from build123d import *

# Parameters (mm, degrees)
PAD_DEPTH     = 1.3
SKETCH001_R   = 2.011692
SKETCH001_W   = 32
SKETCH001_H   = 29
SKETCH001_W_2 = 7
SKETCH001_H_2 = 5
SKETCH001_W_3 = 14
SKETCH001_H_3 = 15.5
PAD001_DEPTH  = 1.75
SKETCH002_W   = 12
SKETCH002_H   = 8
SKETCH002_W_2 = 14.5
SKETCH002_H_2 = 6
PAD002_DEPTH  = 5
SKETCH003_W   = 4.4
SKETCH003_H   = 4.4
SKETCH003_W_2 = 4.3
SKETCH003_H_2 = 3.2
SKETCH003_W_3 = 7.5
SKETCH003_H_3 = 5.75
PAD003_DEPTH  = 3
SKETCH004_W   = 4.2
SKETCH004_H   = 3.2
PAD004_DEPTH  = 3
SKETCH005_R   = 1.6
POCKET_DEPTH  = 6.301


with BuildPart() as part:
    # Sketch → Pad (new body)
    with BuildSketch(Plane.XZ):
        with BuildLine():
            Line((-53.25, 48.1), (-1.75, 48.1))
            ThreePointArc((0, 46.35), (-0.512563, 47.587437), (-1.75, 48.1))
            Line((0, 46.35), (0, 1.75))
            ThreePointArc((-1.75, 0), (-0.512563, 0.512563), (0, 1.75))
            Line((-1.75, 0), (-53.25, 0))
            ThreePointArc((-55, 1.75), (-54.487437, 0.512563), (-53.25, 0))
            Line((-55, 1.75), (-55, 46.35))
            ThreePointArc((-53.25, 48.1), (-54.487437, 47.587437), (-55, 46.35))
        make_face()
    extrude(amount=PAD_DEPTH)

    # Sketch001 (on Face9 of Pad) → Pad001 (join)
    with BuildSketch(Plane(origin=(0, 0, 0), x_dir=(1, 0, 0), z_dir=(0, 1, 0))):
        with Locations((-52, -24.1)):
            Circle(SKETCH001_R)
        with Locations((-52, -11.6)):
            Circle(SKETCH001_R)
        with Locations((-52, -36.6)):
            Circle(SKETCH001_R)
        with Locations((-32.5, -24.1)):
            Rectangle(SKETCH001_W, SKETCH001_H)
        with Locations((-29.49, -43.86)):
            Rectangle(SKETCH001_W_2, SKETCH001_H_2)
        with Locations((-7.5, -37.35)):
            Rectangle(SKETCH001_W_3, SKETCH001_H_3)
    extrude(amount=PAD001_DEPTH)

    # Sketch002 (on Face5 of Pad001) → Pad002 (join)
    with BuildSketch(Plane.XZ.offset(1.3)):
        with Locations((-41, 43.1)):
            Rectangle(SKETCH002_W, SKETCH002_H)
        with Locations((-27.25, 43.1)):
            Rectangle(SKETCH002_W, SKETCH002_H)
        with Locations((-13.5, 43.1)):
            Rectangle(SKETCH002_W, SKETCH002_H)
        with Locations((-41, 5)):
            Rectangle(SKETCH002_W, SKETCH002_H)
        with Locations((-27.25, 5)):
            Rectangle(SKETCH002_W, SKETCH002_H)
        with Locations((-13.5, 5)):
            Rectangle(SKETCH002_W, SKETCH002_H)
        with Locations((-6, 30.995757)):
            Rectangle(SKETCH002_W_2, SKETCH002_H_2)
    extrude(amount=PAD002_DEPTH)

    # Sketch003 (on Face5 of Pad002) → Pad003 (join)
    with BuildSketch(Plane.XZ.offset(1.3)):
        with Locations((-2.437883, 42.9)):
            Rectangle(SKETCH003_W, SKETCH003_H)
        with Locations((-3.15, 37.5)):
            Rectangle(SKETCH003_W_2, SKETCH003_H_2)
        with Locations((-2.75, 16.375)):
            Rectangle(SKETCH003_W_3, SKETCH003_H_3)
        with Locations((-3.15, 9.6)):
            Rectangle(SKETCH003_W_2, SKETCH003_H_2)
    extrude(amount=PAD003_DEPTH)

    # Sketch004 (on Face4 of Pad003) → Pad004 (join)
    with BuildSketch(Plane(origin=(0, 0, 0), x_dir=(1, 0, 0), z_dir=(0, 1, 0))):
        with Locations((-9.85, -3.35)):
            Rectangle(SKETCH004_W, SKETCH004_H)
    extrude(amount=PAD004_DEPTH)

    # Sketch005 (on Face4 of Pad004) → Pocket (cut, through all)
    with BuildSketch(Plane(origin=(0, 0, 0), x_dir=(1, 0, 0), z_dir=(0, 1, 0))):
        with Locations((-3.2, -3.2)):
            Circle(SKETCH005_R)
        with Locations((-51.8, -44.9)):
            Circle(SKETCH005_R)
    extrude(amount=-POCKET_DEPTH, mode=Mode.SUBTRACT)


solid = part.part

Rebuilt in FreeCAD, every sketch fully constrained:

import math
import FreeCAD as App
import Part
import Sketcher
from FreeCAD import Vector
Q = App.Units.Quantity


def add_polygon(sketch, points):
    """Adds a closed chain of lines whose ends are joined by coincident constraints."""
    first, n = sketch.GeometryCount, len(points)
    for a, b in zip(points, points[1:] + points[:1]):
        sketch.addGeometry(Part.LineSegment(App.Vector(*a, 0), App.Vector(*b, 0)), False)
    for i in range(n):
        sketch.addConstraint(Sketcher.Constraint("Coincident", first + i, 2, first + (i + 1) % n, 1))

doc = App.newDocument("Part")
params = doc.addObject("Spreadsheet::Sheet", "Params")
for row, (alias, value) in enumerate([
    ("sketch1_radius", "1.75 mm"),
    ("sketch1_width", "51.5 mm"),
    ("sketch1_height", "44.6 mm"),
    ("pad1_length", "1.3 mm"),
    ("sketch2_width", "32 mm"),
    ("sketch2_width2", "7 mm"),
    ("sketch2_width3", "14 mm"),
    ("sketch2_height", "29 mm"),
    ("sketch2_height2", "5 mm"),
    ("pad2_length", "1.75 mm"),
    ("sketch3_width", "12 mm"),
    ("sketch3_height", "8 mm"),
    ("sketch3_height2", "6 mm"),
    ("sketch3_width2", "14.5 mm"),
    ("pad3_length", "5 mm"),
    ("sketch4_width", "4.4 mm"),
    ("sketch4_width2", "4.3 mm"),
    ("sketch4_width3", "7.5 mm"),
    ("sketch4_height", "3.2 mm"),
    ("sketch4_height2", "5.75 mm"),
    ("pad4_length", "3 mm"),
    ("sketch5_width", "4.2 mm"),
    ("sketch5_height", "3.2 mm"),
    ("pad5_length", "3 mm"),
    ("sketch6_diameter", "3.2 mm"),
], start=1):
    params.set(f"A{row}", alias)
    params.set(f"B{row}", "=" + value)
    params.setAlias(f"B{row}", alias)

body = doc.addObject("PartDesign::Body", "Body")

# Sketch on XZ plane
sketch1 = body.newObject("Sketcher::SketchObject", "Sketch")
sketch1.AttachmentSupport = (doc.getObject("XZ_Plane"), [""])
sketch1.MapMode = "FlatFace"
sketch1.addGeometry(Part.LineSegment(Vector(-1.75, 48.1, 0), Vector(-53.25, 48.1, 0)), False)
sketch1.addGeometry(Part.ArcOfCircle(Part.Circle(Vector(-53.25, 46.35, 0), Vector(0, 0, 1), 1.75), math.radians(89.999985), math.radians(180.000015)), False)
sketch1.addGeometry(Part.LineSegment(Vector(-55, 46.35, 0), Vector(-55, 1.75, 0)), False)
sketch1.addGeometry(Part.ArcOfCircle(Part.Circle(Vector(-53.25, 1.75, 0), Vector(0, 0, 1), 1.75), math.radians(179.999985), math.radians(270.000015)), False)
sketch1.addGeometry(Part.LineSegment(Vector(-53.25, 0, 0), Vector(-1.75, 0, 0)), False)
sketch1.addGeometry(Part.ArcOfCircle(Part.Circle(Vector(-1.75, 1.75, 0), Vector(0, 0, 1), 1.75), math.radians(-90.000015), math.radians(0.000015)), False)
sketch1.addGeometry(Part.LineSegment(Vector(0, 1.75, 0), Vector(0, 46.35, 0)), False)
sketch1.addGeometry(Part.ArcOfCircle(Part.Circle(Vector(-1.75, 46.35, 0), Vector(0, 0, 1), 1.75), math.radians(-0.000015), math.radians(90.000015)), False)
sketch1.addConstraint(Sketcher.Constraint("Tangent", 0, 2, 1, 1))
sketch1.addConstraint(Sketcher.Constraint("Tangent", 1, 2, 2, 1))
sketch1.addConstraint(Sketcher.Constraint("Tangent", 2, 2, 3, 1))
sketch1.addConstraint(Sketcher.Constraint("Tangent", 3, 2, 4, 1))
sketch1.addConstraint(Sketcher.Constraint("Tangent", 4, 2, 5, 1))
sketch1.addConstraint(Sketcher.Constraint("Tangent", 5, 2, 6, 1))
sketch1.addConstraint(Sketcher.Constraint("Tangent", 6, 2, 7, 1))
sketch1.addConstraint(Sketcher.Constraint("Tangent", 7, 2, 0, 1))
sketch1.addConstraint(Sketcher.Constraint("Horizontal", 0))
sketch1.addConstraint(Sketcher.Constraint("Vertical", 2))
sketch1.addConstraint(Sketcher.Constraint("Horizontal", 4))
sketch1.addConstraint(Sketcher.Constraint("Vertical", 6))
sketch1.addConstraint(Sketcher.Constraint("Equal", 1, 3))
sketch1.addConstraint(Sketcher.Constraint("Equal", 3, 5))
sketch1.addConstraint(Sketcher.Constraint("Equal", 5, 7))
sketch1.addConstraint(Sketcher.Constraint("PointOnObject", 3, 2, -1))
sketch1.addConstraint(Sketcher.Constraint("PointOnObject", 5, 2, -2))
sketch1.addConstraint(Sketcher.Constraint("Radius", 1, Q("1.75 mm")))
sketch1.addConstraint(Sketcher.Constraint("DistanceX", 0, 2, 0, 1, Q("51.5 mm")))
sketch1.addConstraint(Sketcher.Constraint("DistanceY", 2, 2, 2, 1, Q("44.6 mm")))
sketch1.setExpression("Constraints[17]", "Params.sketch1_radius")
sketch1.setExpression("Constraints[18]", "Params.sketch1_width")
sketch1.setExpression("Constraints[19]", "Params.sketch1_height")
pad1 = body.newObject("PartDesign::Pad", "Pad")
pad1.Profile = sketch1
pad1.setExpression("Length", "Params.pad1_length")

# Sketch on XZ plane
sketch2 = body.newObject("Sketcher::SketchObject", "Sketch001")
sketch2.AttachmentSupport = (doc.getObject("XZ_Plane"), [""])
sketch2.MapMode = "FlatFace"
sketch2.addGeometry(Part.Circle(Vector(-52, 24.1, 0), Vector(0, 0, 1), 2.011692), False)  # 0
sketch2.addGeometry(Part.Circle(Vector(-52, 11.6, 0), Vector(0, 0, 1), 2.011692), False)  # 1
sketch2.addGeometry(Part.Circle(Vector(-52, 36.6, 0), Vector(0, 0, 1), 2.011692), False)  # 2
add_polygon(sketch2, [(-48.5, 9.6), (-48.5, 38.6), (-16.5, 38.6), (-16.5, 9.6)])  # lines 3-6
add_polygon(sketch2, [(-32.99, 41.36), (-32.99, 46.36), (-25.99, 46.36), (-25.99, 41.36)])  # lines 7-10
add_polygon(sketch2, [(-14.5, 29.6), (-14.5, 45.1), (-0.5, 45.1), (-0.5, 29.6)])  # lines 11-14
sketch2.addConstraint(Sketcher.Constraint("Vertical", 3))
sketch2.addConstraint(Sketcher.Constraint("Horizontal", 4))
sketch2.addConstraint(Sketcher.Constraint("Vertical", 5))
sketch2.addConstraint(Sketcher.Constraint("Horizontal", 6))
sketch2.addConstraint(Sketcher.Constraint("Vertical", 7))
sketch2.addConstraint(Sketcher.Constraint("Horizontal", 8))
sketch2.addConstraint(Sketcher.Constraint("Vertical", 9))
sketch2.addConstraint(Sketcher.Constraint("Horizontal", 10))
sketch2.addConstraint(Sketcher.Constraint("Vertical", 11))
sketch2.addConstraint(Sketcher.Constraint("Horizontal", 12))
sketch2.addConstraint(Sketcher.Constraint("Vertical", 13))
sketch2.addConstraint(Sketcher.Constraint("Horizontal", 14))
sketch2.addConstraint(Sketcher.Constraint("Equal", 0, 1))
sketch2.addConstraint(Sketcher.Constraint("Equal", 1, 2))
sketch2.addConstraint(Sketcher.Constraint("Vertical", 0, 3, 1, 3))
sketch2.addConstraint(Sketcher.Constraint("Vertical", 1, 3, 2, 3))
sketch2.addConstraint(Sketcher.Constraint("DistanceX", 4, 1, 4, 2, Q("32 mm")))
sketch2.addConstraint(Sketcher.Constraint("DistanceX", 8, 1, 8, 2, Q("7 mm")))
sketch2.addConstraint(Sketcher.Constraint("DistanceX", 12, 1, 12, 2, Q("14 mm")))
sketch2.addConstraint(Sketcher.Constraint("DistanceY", 3, 1, 3, 2, Q("29 mm")))
sketch2.addConstraint(Sketcher.Constraint("DistanceY", 7, 1, 7, 2, Q("5 mm")))
sketch2.addConstraint(Sketcher.Constraint("DistanceY", 11, 1, 11, 2, Q("15.5 mm")))
sketch2.addConstraint(Sketcher.Constraint("DistanceX", 0, 3, -1, 1, Q("52 mm")))
sketch2.addConstraint(Sketcher.Constraint("DistanceY", 1, 3, 2, 3, Q("25 mm")))
sketch2.addConstraint(Sketcher.Constraint("DistanceY", 2, 3, 3, 2, Q("2 mm")))
sketch2.addConstraint(Sketcher.Constraint("DistanceX", 4, 2, 11, 2, Q("2 mm")))
sketch2.addConstraint(Sketcher.Constraint("DistanceY", 13, 2, 4, 2, Q("9 mm")))
sketch2.addConstraint(Sketcher.Constraint("DistanceY", -1, 1, 0, 3, Q("24.1 mm")))
sketch2.addConstraint(Sketcher.Constraint("DistanceY", -1, 1, 1, 3, Q("11.6 mm")))
sketch2.addConstraint(Sketcher.Constraint("DistanceX", 3, 2, -1, 1, Q("48.5 mm")))
sketch2.addConstraint(Sketcher.Constraint("DistanceX", 7, 2, -1, 1, Q("32.99 mm")))
sketch2.addConstraint(Sketcher.Constraint("DistanceY", -1, 1, 7, 2, Q("46.36 mm")))
sketch2.addConstraint(Sketcher.Constraint("Diameter", 0, Q("4.023384 mm")))
sketch2.setExpression("Constraints[28]", "Params.sketch2_width")
sketch2.setExpression("Constraints[29]", "Params.sketch2_width2")
sketch2.setExpression("Constraints[30]", "Params.sketch2_width3")
sketch2.setExpression("Constraints[31]", "Params.sketch2_height")
sketch2.setExpression("Constraints[32]", "Params.sketch2_height2")
pad2 = body.newObject("PartDesign::Pad", "Pad001")
pad2.Profile = sketch2
pad2.setExpression("Length", "Params.pad2_length")
pad2.Reversed = True

# Sketch on XZ plane
sketch3 = body.newObject("Sketcher::SketchObject", "Sketch002")
sketch3.AttachmentSupport = (doc.getObject("XZ_Plane"), [""])
sketch3.MapMode = "FlatFace"
sketch3.AttachmentOffset = App.Placement(Vector(0, 0, 1.3), App.Rotation())
add_polygon(sketch3, [(-47, 47.1), (-47, 39.1), (-35, 39.1), (-35, 47.1)])  # lines 0-3
add_polygon(sketch3, [(-33.25, 47.1), (-33.25, 39.1), (-21.25, 39.1), (-21.25, 47.1)])  # lines 4-7
add_polygon(sketch3, [(-19.5, 47.1), (-19.5, 39.1), (-7.5, 39.1), (-7.5, 47.1)])  # lines 8-11
add_polygon(sketch3, [(-47, 9), (-47, 1), (-35, 1), (-35, 9)])  # lines 12-15
add_polygon(sketch3, [(-33.25, 9), (-33.25, 1), (-21.25, 1), (-21.25, 9)])  # lines 16-19
add_polygon(sketch3, [(-19.5, 9), (-19.5, 1), (-7.5, 1), (-7.5, 9)])  # lines 20-23
add_polygon(sketch3, [(-13.25, 33.995757), (-13.25, 27.995757), (1.25, 27.995757), (1.25, 33.995757)])  # lines 24-27
sketch3.addConstraint(Sketcher.Constraint("Vertical", 0))
sketch3.addConstraint(Sketcher.Constraint("Horizontal", 1))
sketch3.addConstraint(Sketcher.Constraint("Vertical", 2))
sketch3.addConstraint(Sketcher.Constraint("Horizontal", 3))
sketch3.addConstraint(Sketcher.Constraint("Vertical", 4))
sketch3.addConstraint(Sketcher.Constraint("Horizontal", 5))
sketch3.addConstraint(Sketcher.Constraint("Vertical", 6))
sketch3.addConstraint(Sketcher.Constraint("Horizontal", 7))
sketch3.addConstraint(Sketcher.Constraint("Vertical", 8))
sketch3.addConstraint(Sketcher.Constraint("Horizontal", 9))
sketch3.addConstraint(Sketcher.Constraint("Vertical", 10))
sketch3.addConstraint(Sketcher.Constraint("Horizontal", 11))
sketch3.addConstraint(Sketcher.Constraint("Vertical", 12))
sketch3.addConstraint(Sketcher.Constraint("Horizontal", 13))
sketch3.addConstraint(Sketcher.Constraint("Vertical", 14))
sketch3.addConstraint(Sketcher.Constraint("Horizontal", 15))
sketch3.addConstraint(Sketcher.Constraint("Vertical", 16))
sketch3.addConstraint(Sketcher.Constraint("Horizontal", 17))
sketch3.addConstraint(Sketcher.Constraint("Vertical", 18))
sketch3.addConstraint(Sketcher.Constraint("Horizontal", 19))
sketch3.addConstraint(Sketcher.Constraint("Vertical", 20))
sketch3.addConstraint(Sketcher.Constraint("Horizontal", 21))
sketch3.addConstraint(Sketcher.Constraint("Vertical", 22))
sketch3.addConstraint(Sketcher.Constraint("Horizontal", 23))
sketch3.addConstraint(Sketcher.Constraint("Vertical", 24))
sketch3.addConstraint(Sketcher.Constraint("Horizontal", 25))
sketch3.addConstraint(Sketcher.Constraint("Vertical", 26))
sketch3.addConstraint(Sketcher.Constraint("Horizontal", 27))
sketch3.addConstraint(Sketcher.Constraint("Horizontal", 1, 2, 4, 2))
sketch3.addConstraint(Sketcher.Constraint("Horizontal", 3, 2, 6, 2))
sketch3.addConstraint(Sketcher.Constraint("Horizontal", 5, 2, 8, 2))
sketch3.addConstraint(Sketcher.Constraint("Horizontal", 7, 2, 10, 2))
sketch3.addConstraint(Sketcher.Constraint("Horizontal", 13, 2, 16, 2))
sketch3.addConstraint(Sketcher.Constraint("Horizontal", 15, 2, 18, 2))
sketch3.addConstraint(Sketcher.Constraint("Horizontal", 17, 2, 20, 2))
sketch3.addConstraint(Sketcher.Constraint("Horizontal", 19, 2, 22, 2))
sketch3.addConstraint(Sketcher.Constraint("Vertical", 3, 2, 12, 2))
sketch3.addConstraint(Sketcher.Constraint("Vertical", 2, 2, 13, 2))
sketch3.addConstraint(Sketcher.Constraint("Vertical", 7, 2, 16, 2))
sketch3.addConstraint(Sketcher.Constraint("Vertical", 6, 2, 17, 2))
sketch3.addConstraint(Sketcher.Constraint("Vertical", 11, 2, 20, 2))
sketch3.addConstraint(Sketcher.Constraint("Vertical", 10, 2, 21, 2))
sketch3.addConstraint(Sketcher.Constraint("Equal", 3, 5))
sketch3.addConstraint(Sketcher.Constraint("Equal", 7, 9))
sketch3.addConstraint(Sketcher.Constraint("Equal", 10, 12))
sketch3.addConstraint(Sketcher.Constraint("DistanceX", 1, 1, 1, 2, Q("12 mm")))
sketch3.addConstraint(Sketcher.Constraint("DistanceY", 0, 2, 0, 1, Q("8 mm")))
sketch3.addConstraint(Sketcher.Constraint("DistanceY", 24, 2, 24, 1, Q("6 mm")))
sketch3.addConstraint(Sketcher.Constraint("DistanceX", 25, 1, 25, 2, Q("14.5 mm")))
sketch3.addConstraint(Sketcher.Constraint("DistanceX", 0, 2, -1, 1, Q("47 mm")))
sketch3.addConstraint(Sketcher.Constraint("DistanceY", -1, 1, 12, 2, Q("1 mm")))
sketch3.addConstraint(Sketcher.Constraint("DistanceX", 5, 2, 24, 2, Q("8 mm")))
sketch3.addConstraint(Sketcher.Constraint("DistanceY", -1, 1, 0, 2, Q("39.1 mm")))
sketch3.addConstraint(Sketcher.Constraint("DistanceX", 8, 2, -1, 1, Q("19.5 mm")))
sketch3.addConstraint(Sketcher.Constraint("DistanceX", 4, 2, -1, 1, Q("33.25 mm")))
sketch3.addConstraint(Sketcher.Constraint("DistanceY", -1, 1, 24, 2, Q("27.995757 mm")))
sketch3.setExpression("Constraints[73]", "Params.sketch3_width")
sketch3.setExpression("Constraints[74]", "Params.sketch3_height")
sketch3.setExpression("Constraints[75]", "Params.sketch3_height2")
sketch3.setExpression("Constraints[76]", "Params.sketch3_width2")
pad3 = body.newObject("PartDesign::Pad", "Pad002")
pad3.Profile = sketch3
pad3.setExpression("Length", "Params.pad3_length")

# Sketch on XZ plane
sketch4 = body.newObject("Sketcher::SketchObject", "Sketch003")
sketch4.AttachmentSupport = (doc.getObject("XZ_Plane"), [""])
sketch4.MapMode = "FlatFace"
sketch4.AttachmentOffset = App.Placement(Vector(0, 0, 1.3), App.Rotation())
add_polygon(sketch4, [(-4.637883, 45.1), (-4.637883, 40.7), (-0.237883, 40.7), (-0.237883, 45.1)])  # lines 0-3
add_polygon(sketch4, [(-5.3, 39.1), (-5.3, 35.9), (-1, 35.9), (-1, 39.1)])  # lines 4-7
add_polygon(sketch4, [(-6.5, 19.25), (-6.5, 13.5), (1, 13.5), (1, 19.25)])  # lines 8-11
add_polygon(sketch4, [(-5.3, 11.2), (-5.3, 8), (-1, 8), (-1, 11.2)])  # lines 12-15
sketch4.addConstraint(Sketcher.Constraint("Vertical", 0))
sketch4.addConstraint(Sketcher.Constraint("Horizontal", 1))
sketch4.addConstraint(Sketcher.Constraint("Vertical", 2))
sketch4.addConstraint(Sketcher.Constraint("Horizontal", 3))
sketch4.addConstraint(Sketcher.Constraint("Vertical", 4))
sketch4.addConstraint(Sketcher.Constraint("Horizontal", 5))
sketch4.addConstraint(Sketcher.Constraint("Vertical", 6))
sketch4.addConstraint(Sketcher.Constraint("Horizontal", 7))
sketch4.addConstraint(Sketcher.Constraint("Vertical", 8))
sketch4.addConstraint(Sketcher.Constraint("Horizontal", 9))
sketch4.addConstraint(Sketcher.Constraint("Vertical", 10))
sketch4.addConstraint(Sketcher.Constraint("Horizontal", 11))
sketch4.addConstraint(Sketcher.Constraint("Vertical", 12))
sketch4.addConstraint(Sketcher.Constraint("Horizontal", 13))
sketch4.addConstraint(Sketcher.Constraint("Vertical", 14))
sketch4.addConstraint(Sketcher.Constraint("Horizontal", 15))
sketch4.addConstraint(Sketcher.Constraint("Vertical", 7, 2, 12, 2))
sketch4.addConstraint(Sketcher.Constraint("Vertical", 6, 2, 13, 2))
sketch4.addConstraint(Sketcher.Constraint("Equal", 3, 0))
sketch4.addConstraint(Sketcher.Constraint("Equal", 6, 12))
sketch4.addConstraint(Sketcher.Constraint("DistanceX", 1, 1, 1, 2, Q("4.4 mm")))
sketch4.addConstraint(Sketcher.Constraint("DistanceX", 5, 1, 5, 2, Q("4.3 mm")))
sketch4.addConstraint(Sketcher.Constraint("DistanceX", 9, 1, 9, 2, Q("7.5 mm")))
sketch4.addConstraint(Sketcher.Constraint("DistanceY", 4, 2, 4, 1, Q("3.2 mm")))
sketch4.addConstraint(Sketcher.Constraint("DistanceX", 5, 2, -1, 1, Q("1 mm")))
sketch4.addConstraint(Sketcher.Constraint("DistanceX", -1, 1, 9, 2, Q("1 mm")))
sketch4.addConstraint(Sketcher.Constraint("DistanceY", -1, 1, 12, 2, Q("8 mm")))
sketch4.addConstraint(Sketcher.Constraint("DistanceY", 6, 2, 2, 2, Q("6 mm")))
sketch4.addConstraint(Sketcher.Constraint("DistanceY", 8, 2, 8, 1, Q("5.75 mm")))
sketch4.addConstraint(Sketcher.Constraint("DistanceY", -1, 1, 0, 2, Q("40.7 mm")))
sketch4.addConstraint(Sketcher.Constraint("DistanceY", -1, 1, 8, 2, Q("13.5 mm")))
sketch4.addConstraint(Sketcher.Constraint("DistanceX", 0, 2, -1, 1, Q("4.637883 mm")))
sketch4.setExpression("Constraints[36]", "Params.sketch4_width")
sketch4.setExpression("Constraints[37]", "Params.sketch4_width2")
sketch4.setExpression("Constraints[38]", "Params.sketch4_width3")
sketch4.setExpression("Constraints[39]", "Params.sketch4_height")
sketch4.setExpression("Constraints[44]", "Params.sketch4_height2")
pad4 = body.newObject("PartDesign::Pad", "Pad003")
pad4.Profile = sketch4
pad4.setExpression("Length", "Params.pad4_length")

# Sketch on XZ plane
sketch5 = body.newObject("Sketcher::SketchObject", "Sketch004")
sketch5.AttachmentSupport = (doc.getObject("XZ_Plane"), [""])
sketch5.MapMode = "FlatFace"
add_polygon(sketch5, [(-11.95, 1.75), (-11.95, 4.95), (-7.75, 4.95), (-7.75, 1.75)])  # lines 0-3
sketch5.addConstraint(Sketcher.Constraint("Vertical", 0))
sketch5.addConstraint(Sketcher.Constraint("Horizontal", 1))
sketch5.addConstraint(Sketcher.Constraint("Vertical", 2))
sketch5.addConstraint(Sketcher.Constraint("Horizontal", 3))
sketch5.addConstraint(Sketcher.Constraint("DistanceX", 1, 1, 1, 2, Q("4.2 mm")))
sketch5.addConstraint(Sketcher.Constraint("DistanceY", 0, 1, 0, 2, Q("3.2 mm")))
sketch5.addConstraint(Sketcher.Constraint("DistanceX", 0, 2, -1, 1, Q("11.95 mm")))
sketch5.addConstraint(Sketcher.Constraint("DistanceY", -1, 1, 0, 2, Q("4.95 mm")))
sketch5.setExpression("Constraints[8]", "Params.sketch5_width")
sketch5.setExpression("Constraints[9]", "Params.sketch5_height")
pad5 = body.newObject("PartDesign::Pad", "Pad004")
pad5.Profile = sketch5
pad5.setExpression("Length", "Params.pad5_length")
pad5.Reversed = True

# Sketch on XZ plane
sketch6 = body.newObject("Sketcher::SketchObject", "Sketch005")
sketch6.AttachmentSupport = (doc.getObject("XZ_Plane"), [""])
sketch6.MapMode = "FlatFace"
sketch6.addGeometry(Part.Circle(Vector(-3.2, 3.2, 0), Vector(0, 0, 1), 1.6), False)
sketch6.addGeometry(Part.Circle(Vector(-51.8, 44.9, 0), Vector(0, 0, 1), 1.6), False)
sketch6.addConstraint(Sketcher.Constraint("Equal", 0, 1))
sketch6.addConstraint(Sketcher.Constraint("Diameter", 0, Q("3.2 mm")))
sketch6.addConstraint(Sketcher.Constraint("DistanceX", 0, 3, -1, 1, Q("3.2 mm")))
sketch6.addConstraint(Sketcher.Constraint("DistanceY", -1, 1, 0, 3, Q("3.2 mm")))
sketch6.addConstraint(Sketcher.Constraint("DistanceX", 1, 3, -1, 1, Q("51.8 mm")))
sketch6.addConstraint(Sketcher.Constraint("DistanceY", -1, 1, 1, 3, Q("44.9 mm")))
sketch6.setExpression("Constraints[1]", "Params.sketch6_diameter")
pocket1 = body.newObject("PartDesign::Pocket", "Pocket")
pocket1.Profile = sketch6
pocket1.Type = "ThroughAll"
pocket1.Reversed = True

doc.recompute()
